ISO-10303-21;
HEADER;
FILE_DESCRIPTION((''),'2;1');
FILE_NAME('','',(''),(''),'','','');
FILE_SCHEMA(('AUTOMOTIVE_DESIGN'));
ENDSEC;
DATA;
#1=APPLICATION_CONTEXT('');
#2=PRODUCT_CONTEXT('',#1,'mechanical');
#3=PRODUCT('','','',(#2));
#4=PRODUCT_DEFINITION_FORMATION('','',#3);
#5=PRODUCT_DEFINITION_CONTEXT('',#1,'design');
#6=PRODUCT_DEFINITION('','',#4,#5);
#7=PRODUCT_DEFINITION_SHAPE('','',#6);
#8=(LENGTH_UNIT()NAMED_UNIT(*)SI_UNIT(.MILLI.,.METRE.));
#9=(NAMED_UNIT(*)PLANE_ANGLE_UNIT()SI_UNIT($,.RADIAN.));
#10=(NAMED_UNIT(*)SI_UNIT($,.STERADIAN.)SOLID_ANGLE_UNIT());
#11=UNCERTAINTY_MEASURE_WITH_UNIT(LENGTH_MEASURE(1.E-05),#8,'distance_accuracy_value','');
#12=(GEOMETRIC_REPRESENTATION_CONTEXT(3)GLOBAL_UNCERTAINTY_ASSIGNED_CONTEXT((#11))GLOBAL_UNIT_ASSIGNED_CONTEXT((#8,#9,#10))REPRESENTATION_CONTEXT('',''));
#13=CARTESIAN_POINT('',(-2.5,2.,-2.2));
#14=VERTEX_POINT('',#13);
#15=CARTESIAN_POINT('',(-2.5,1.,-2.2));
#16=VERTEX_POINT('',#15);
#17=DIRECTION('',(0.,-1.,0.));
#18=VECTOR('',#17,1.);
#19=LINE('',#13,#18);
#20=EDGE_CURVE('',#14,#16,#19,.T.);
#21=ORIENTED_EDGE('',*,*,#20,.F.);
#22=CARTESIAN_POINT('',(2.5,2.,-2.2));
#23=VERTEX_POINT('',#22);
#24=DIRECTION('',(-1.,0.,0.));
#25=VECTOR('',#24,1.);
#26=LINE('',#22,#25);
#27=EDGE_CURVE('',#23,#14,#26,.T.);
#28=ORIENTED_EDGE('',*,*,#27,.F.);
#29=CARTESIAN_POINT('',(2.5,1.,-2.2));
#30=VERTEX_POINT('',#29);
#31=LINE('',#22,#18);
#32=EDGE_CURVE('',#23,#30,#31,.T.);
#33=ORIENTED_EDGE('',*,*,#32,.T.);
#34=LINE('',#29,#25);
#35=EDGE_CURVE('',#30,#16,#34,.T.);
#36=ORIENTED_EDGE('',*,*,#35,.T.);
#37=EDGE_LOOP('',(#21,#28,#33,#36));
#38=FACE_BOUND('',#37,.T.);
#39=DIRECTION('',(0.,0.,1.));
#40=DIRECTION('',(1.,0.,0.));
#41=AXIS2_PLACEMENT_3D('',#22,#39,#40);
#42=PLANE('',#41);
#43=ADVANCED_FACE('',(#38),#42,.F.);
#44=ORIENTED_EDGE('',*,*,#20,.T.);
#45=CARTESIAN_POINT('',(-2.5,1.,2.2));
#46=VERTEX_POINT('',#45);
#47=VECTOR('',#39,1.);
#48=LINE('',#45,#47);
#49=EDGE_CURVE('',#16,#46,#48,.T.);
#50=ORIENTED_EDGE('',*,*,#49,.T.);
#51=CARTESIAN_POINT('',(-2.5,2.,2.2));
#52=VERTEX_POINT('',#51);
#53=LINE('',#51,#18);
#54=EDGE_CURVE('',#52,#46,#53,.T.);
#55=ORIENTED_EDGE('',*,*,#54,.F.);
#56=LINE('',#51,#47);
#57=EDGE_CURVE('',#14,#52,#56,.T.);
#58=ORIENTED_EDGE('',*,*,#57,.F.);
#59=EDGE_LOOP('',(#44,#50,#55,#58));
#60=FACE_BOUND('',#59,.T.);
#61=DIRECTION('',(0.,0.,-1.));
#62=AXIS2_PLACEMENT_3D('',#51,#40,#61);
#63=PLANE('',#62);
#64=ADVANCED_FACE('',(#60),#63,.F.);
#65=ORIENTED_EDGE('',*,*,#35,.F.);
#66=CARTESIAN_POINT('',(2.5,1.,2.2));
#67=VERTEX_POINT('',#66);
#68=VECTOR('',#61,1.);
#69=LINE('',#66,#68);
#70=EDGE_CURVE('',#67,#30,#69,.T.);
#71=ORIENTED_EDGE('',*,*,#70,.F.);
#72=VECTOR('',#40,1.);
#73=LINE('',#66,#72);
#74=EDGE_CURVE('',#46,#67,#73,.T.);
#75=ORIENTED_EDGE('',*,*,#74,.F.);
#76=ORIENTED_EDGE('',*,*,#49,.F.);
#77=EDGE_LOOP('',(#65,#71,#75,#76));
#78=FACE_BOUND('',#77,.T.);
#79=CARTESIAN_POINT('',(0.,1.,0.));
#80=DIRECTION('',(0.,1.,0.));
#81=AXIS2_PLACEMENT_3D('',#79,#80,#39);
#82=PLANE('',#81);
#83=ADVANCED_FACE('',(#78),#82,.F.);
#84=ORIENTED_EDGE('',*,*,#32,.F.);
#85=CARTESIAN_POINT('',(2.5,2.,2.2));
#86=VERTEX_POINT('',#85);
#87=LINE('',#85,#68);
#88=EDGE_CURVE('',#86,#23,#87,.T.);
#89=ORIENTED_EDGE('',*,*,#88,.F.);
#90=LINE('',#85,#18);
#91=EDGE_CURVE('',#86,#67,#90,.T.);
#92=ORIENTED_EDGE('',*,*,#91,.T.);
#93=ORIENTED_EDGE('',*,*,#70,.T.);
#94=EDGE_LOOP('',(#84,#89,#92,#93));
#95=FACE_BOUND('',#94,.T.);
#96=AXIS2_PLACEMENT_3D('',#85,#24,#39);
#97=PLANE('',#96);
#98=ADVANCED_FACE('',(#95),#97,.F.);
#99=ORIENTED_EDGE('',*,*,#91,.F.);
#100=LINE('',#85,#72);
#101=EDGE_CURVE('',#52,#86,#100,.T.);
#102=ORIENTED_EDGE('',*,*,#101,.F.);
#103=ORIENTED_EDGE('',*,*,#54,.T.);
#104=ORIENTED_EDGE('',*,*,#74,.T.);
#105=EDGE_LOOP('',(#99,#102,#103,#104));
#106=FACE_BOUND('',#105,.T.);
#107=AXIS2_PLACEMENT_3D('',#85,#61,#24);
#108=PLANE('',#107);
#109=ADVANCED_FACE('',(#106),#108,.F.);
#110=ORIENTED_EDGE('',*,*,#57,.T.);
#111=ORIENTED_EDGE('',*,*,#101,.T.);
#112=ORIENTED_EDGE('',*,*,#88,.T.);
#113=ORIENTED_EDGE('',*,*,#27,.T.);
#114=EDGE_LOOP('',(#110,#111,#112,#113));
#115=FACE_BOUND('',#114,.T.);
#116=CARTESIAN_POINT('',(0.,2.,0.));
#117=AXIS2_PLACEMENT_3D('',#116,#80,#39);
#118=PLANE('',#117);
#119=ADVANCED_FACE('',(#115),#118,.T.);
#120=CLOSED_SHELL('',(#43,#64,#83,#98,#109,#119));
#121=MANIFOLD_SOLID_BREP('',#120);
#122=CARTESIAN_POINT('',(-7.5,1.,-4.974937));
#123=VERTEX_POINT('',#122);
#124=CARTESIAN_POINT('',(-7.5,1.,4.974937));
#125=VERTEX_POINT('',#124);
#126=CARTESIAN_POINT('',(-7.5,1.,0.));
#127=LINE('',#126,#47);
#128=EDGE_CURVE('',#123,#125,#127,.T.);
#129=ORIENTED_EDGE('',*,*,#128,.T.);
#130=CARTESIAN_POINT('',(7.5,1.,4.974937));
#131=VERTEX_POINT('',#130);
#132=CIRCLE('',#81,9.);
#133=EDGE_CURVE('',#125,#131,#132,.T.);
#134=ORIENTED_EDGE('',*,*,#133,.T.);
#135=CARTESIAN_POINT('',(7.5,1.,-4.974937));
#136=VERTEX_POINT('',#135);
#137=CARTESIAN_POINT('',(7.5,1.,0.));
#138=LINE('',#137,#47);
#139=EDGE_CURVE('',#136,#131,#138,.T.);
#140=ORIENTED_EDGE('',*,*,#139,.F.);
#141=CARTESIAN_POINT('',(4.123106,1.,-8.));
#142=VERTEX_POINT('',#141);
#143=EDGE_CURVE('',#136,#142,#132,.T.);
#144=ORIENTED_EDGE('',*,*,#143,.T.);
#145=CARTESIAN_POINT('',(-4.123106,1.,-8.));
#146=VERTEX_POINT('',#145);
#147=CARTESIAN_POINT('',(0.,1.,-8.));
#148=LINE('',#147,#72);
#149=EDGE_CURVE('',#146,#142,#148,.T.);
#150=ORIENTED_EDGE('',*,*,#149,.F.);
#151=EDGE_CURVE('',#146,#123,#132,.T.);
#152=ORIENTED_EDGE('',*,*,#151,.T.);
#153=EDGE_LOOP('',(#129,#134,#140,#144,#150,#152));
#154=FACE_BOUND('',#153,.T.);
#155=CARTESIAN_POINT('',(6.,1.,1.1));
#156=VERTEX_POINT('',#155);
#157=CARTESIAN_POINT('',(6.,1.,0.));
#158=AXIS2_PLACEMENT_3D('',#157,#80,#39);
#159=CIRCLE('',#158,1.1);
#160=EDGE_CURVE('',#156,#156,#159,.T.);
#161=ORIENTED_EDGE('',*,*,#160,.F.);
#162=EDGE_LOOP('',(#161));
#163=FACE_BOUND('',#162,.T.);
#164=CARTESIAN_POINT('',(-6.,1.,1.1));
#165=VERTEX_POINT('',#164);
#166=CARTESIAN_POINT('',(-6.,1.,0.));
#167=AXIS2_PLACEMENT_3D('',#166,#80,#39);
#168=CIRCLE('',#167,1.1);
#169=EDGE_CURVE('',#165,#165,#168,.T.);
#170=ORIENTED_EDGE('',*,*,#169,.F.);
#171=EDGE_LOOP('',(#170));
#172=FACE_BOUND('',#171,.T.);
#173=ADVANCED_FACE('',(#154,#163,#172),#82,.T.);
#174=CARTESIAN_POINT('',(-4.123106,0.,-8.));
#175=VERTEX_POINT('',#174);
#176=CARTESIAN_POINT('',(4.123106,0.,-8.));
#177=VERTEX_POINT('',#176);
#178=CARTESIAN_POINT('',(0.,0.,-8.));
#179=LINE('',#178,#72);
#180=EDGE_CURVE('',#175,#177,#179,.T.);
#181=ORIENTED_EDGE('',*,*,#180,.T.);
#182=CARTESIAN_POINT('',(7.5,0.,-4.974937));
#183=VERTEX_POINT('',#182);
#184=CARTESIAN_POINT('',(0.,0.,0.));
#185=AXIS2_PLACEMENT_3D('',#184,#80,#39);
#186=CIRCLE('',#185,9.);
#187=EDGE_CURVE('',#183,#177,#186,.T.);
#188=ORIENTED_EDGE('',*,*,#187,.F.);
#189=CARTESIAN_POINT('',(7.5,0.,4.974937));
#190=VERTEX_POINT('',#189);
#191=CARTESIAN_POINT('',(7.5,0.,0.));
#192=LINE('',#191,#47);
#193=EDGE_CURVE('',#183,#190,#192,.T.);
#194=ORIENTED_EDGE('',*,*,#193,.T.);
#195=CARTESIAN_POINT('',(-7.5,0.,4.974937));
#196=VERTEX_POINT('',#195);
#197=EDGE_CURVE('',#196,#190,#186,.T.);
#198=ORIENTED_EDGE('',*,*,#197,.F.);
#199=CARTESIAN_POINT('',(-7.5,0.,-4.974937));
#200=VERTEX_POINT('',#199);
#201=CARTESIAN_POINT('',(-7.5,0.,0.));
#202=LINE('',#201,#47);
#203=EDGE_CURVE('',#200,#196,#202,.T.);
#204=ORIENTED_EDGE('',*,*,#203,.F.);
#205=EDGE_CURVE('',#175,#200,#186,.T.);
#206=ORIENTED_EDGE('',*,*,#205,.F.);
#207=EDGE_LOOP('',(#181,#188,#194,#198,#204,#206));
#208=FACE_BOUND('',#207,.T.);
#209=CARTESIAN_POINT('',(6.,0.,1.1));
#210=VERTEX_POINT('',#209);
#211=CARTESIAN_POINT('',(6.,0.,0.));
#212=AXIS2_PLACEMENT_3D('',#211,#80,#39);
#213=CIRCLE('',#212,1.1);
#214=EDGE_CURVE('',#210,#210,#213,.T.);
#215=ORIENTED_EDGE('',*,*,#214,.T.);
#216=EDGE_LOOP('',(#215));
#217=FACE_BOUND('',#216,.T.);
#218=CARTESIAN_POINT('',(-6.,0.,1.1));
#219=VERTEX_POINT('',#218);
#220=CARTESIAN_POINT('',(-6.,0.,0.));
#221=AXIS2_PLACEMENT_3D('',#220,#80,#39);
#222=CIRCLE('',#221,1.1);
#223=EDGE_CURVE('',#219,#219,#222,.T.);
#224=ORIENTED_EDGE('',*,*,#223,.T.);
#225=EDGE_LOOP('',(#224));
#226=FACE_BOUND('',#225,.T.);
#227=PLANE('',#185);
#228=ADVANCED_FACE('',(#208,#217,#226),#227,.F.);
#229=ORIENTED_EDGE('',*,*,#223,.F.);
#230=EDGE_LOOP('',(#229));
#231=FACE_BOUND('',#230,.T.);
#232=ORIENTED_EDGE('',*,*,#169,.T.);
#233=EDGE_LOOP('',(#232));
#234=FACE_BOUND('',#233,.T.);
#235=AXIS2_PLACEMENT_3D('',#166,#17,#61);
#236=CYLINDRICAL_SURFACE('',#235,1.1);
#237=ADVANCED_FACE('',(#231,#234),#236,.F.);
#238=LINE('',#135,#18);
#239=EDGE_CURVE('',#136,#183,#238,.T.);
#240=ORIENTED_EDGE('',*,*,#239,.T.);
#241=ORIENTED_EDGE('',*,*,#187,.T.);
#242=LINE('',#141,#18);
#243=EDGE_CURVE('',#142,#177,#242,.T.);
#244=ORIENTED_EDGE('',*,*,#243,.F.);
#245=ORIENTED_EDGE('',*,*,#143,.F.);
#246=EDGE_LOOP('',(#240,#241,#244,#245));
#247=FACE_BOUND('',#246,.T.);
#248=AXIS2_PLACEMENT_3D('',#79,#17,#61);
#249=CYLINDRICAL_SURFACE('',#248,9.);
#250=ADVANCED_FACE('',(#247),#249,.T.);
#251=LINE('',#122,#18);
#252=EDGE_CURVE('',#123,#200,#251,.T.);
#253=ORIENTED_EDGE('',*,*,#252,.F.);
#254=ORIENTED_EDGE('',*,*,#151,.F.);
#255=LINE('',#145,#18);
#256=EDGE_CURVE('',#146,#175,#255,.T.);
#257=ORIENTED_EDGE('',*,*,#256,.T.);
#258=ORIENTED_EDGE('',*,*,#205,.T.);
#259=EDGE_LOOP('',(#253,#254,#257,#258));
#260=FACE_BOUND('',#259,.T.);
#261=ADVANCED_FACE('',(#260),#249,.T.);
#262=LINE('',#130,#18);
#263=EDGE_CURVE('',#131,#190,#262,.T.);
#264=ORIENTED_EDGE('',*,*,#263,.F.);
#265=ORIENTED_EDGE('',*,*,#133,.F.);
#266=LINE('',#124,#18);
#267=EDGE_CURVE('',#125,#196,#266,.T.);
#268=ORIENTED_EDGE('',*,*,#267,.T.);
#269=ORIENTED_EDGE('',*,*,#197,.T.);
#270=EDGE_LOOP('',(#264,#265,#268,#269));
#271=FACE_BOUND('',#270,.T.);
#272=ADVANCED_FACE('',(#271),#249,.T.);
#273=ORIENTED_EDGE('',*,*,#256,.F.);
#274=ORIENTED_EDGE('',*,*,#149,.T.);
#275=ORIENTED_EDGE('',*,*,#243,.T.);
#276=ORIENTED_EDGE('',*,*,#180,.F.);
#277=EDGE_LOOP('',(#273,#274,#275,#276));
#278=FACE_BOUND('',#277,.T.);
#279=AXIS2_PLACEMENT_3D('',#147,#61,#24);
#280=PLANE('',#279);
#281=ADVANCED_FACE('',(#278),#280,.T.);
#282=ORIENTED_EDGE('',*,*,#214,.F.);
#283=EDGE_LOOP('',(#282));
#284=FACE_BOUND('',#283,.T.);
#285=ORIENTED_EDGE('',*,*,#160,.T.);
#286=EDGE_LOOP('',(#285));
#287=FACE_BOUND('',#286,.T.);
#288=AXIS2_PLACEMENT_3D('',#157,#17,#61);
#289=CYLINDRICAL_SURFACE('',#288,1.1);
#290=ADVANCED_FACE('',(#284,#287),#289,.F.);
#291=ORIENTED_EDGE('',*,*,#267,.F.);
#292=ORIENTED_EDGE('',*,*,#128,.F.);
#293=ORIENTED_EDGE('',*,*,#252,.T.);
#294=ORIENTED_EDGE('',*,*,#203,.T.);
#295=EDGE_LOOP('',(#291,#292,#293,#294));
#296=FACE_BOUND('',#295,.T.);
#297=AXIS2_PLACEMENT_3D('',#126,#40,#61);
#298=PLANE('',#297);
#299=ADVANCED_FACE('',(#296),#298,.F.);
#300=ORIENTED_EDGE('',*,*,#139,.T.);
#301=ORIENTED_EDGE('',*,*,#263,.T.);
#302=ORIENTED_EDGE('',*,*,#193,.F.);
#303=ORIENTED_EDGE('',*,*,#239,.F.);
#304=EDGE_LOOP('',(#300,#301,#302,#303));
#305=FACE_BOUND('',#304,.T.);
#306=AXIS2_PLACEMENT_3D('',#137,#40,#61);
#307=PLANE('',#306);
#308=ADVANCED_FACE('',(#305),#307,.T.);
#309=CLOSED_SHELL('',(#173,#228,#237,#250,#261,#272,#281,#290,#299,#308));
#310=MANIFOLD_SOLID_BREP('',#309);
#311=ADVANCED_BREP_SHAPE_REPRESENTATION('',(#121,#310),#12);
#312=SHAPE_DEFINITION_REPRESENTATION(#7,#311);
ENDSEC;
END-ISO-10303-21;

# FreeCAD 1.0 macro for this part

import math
import FreeCAD as App
import Part
import Sketcher

doc = App.newDocument("Part")
body = doc.addObject("PartDesign::Body", "Body")

# Sketch on XZ plane
sketch1 = body.newObject("Sketcher::SketchObject", "Sketch")
sketch1.AttachmentSupport = (doc.getObject("XZ_Plane"), [""])
sketch1.MapMode = "FlatFace"
sketch1.addGeometry(Part.LineSegment(App.Vector(4.1, -8, 0), App.Vector(-4.1, -8, 0)), False)
sketch1.addGeometry(Part.ArcOfCircle(Part.Circle(App.Vector(0, 0, 0), App.Vector(0, 0, 1), 9), math.radians(-146), math.radians(-117)), False)
sketch1.addGeometry(Part.LineSegment(App.Vector(-7.5, -5, 0), App.Vector(-7.5, 5, 0)), False)
sketch1.addGeometry(Part.ArcOfCircle(Part.Circle(App.Vector(0, 0, 0), App.Vector(0, 0, 1), 9), math.radians(34), math.radians(146)), False)
sketch1.addGeometry(Part.LineSegment(App.Vector(7.5, 5, 0), App.Vector(7.5, -5, 0)), False)
sketch1.addGeometry(Part.ArcOfCircle(Part.Circle(App.Vector(0, 0, 0), App.Vector(0, 0, 1), 9), math.radians(-63), math.radians(-34)), False)
sketch1.addGeometry(Part.Circle(App.Vector(-6, 0, 0), App.Vector(0, 0, 1), 1.1), False)
sketch1.addGeometry(Part.Circle(App.Vector(6, 0, 0), App.Vector(0, 0, 1), 1.1), False)
sketch1.addConstraint(Sketcher.Constraint("Coincident", 0, 2, 1, 2))
sketch1.addConstraint(Sketcher.Constraint("Coincident", 1, 1, 2, 1))
sketch1.addConstraint(Sketcher.Constraint("Coincident", 2, 2, 3, 2))
sketch1.addConstraint(Sketcher.Constraint("Coincident", 3, 1, 4, 1))
sketch1.addConstraint(Sketcher.Constraint("Coincident", 4, 2, 5, 2))
sketch1.addConstraint(Sketcher.Constraint("Coincident", 5, 1, 0, 1))
sketch1.addConstraint(Sketcher.Constraint("Horizontal", 0))
sketch1.addConstraint(Sketcher.Constraint("Vertical", 2))
sketch1.addConstraint(Sketcher.Constraint("Vertical", 4))
sketch1.addConstraint(Sketcher.Constraint("Coincident", 1, 3, -1, 1))
sketch1.addConstraint(Sketcher.Constraint("Coincident", 3, 3, -1, 1))
sketch1.addConstraint(Sketcher.Constraint("Coincident", 5, 3, -1, 1))
sketch1.addConstraint(Sketcher.Constraint("Equal", 1, 3))
sketch1.addConstraint(Sketcher.Constraint("Equal", 3, 5))
sketch1.addConstraint(Sketcher.Constraint("Equal", 6, 7))
sketch1.addConstraint(Sketcher.Constraint("Symmetric", 6, 3, 7, 3, -1, 1))
sketch1.addConstraint(Sketcher.Constraint("PointOnObject", 6, 3, -1))
sketch1.addConstraint(Sketcher.Constraint("Horizontal", 2, 2, 3, 1))
sketch1.addConstraint(Sketcher.Constraint("Radius", 1, 9.0))
sketch1.addConstraint(Sketcher.Constraint("Diameter", 6, 2.2))
sketch1.addConstraint(Sketcher.Constraint("DistanceX", 6, 3, -1, 1, 6.0))
sketch1.addConstraint(Sketcher.Constraint("DistanceY", 0, 2, -1, 1, 8.0))
sketch1.addConstraint(Sketcher.Constraint("DistanceX", 1, 1, -1, 1, 7.5))
pad1 = body.newObject("PartDesign::Pad", "Pad")
pad1.Profile = sketch1
pad1.Length = 1
pad1.Reversed = True
body2 = doc.addObject("PartDesign::Body", "Body001")

# Sketch on XZ plane
sketch2 = body2.newObject("Sketcher::SketchObject", "Sketch001")
sketch2.AttachmentSupport = (doc.getObject("XZ_Plane001"), [""])
sketch2.MapMode = "FlatFace"
sketch2.AttachmentOffset = App.Placement(App.Vector(0, 0, -1), App.Rotation())
sketch2.addGeometry(Part.LineSegment(App.Vector(-2.5, -2.2, 0), App.Vector(-2.5, 2.2, 0)), False)
sketch2.addGeometry(Part.LineSegment(App.Vector(-2.5, 2.2, 0), App.Vector(2.5, 2.2, 0)), False)
sketch2.addGeometry(Part.LineSegment(App.Vector(2.5, 2.2, 0), App.Vector(2.5, -2.2, 0)), False)
sketch2.addGeometry(Part.LineSegment(App.Vector(2.5, -2.2, 0), App.Vector(-2.5, -2.2, 0)), False)
sketch2.addConstraint(Sketcher.Constraint("Coincident", 0, 2, 1, 1))
sketch2.addConstraint(Sketcher.Constraint("Coincident", 1, 2, 2, 1))
sketch2.addConstraint(Sketcher.Constraint("Coincident", 2, 2, 3, 1))
sketch2.addConstraint(Sketcher.Constraint("Coincident", 3, 2, 0, 1))
sketch2.addConstraint(Sketcher.Constraint("Vertical", 0))
sketch2.addConstraint(Sketcher.Constraint("Horizontal", 1))
sketch2.addConstraint(Sketcher.Constraint("Vertical", 2))
sketch2.addConstraint(Sketcher.Constraint("Horizontal", 3))
sketch2.addConstraint(Sketcher.Constraint("Symmetric", 0, 2, 2, 2, -1, 1))
sketch2.addConstraint(Sketcher.Constraint("DistanceX", 1, 1, 1, 2, 5.0))
sketch2.addConstraint(Sketcher.Constraint("DistanceY", 0, 1, 0, 2, 4.4))
pad2 = body2.newObject("PartDesign::Pad", "Pad001")
pad2.Profile = sketch2
pad2.Length = 1
pad2.Reversed = True

doc.recompute()
